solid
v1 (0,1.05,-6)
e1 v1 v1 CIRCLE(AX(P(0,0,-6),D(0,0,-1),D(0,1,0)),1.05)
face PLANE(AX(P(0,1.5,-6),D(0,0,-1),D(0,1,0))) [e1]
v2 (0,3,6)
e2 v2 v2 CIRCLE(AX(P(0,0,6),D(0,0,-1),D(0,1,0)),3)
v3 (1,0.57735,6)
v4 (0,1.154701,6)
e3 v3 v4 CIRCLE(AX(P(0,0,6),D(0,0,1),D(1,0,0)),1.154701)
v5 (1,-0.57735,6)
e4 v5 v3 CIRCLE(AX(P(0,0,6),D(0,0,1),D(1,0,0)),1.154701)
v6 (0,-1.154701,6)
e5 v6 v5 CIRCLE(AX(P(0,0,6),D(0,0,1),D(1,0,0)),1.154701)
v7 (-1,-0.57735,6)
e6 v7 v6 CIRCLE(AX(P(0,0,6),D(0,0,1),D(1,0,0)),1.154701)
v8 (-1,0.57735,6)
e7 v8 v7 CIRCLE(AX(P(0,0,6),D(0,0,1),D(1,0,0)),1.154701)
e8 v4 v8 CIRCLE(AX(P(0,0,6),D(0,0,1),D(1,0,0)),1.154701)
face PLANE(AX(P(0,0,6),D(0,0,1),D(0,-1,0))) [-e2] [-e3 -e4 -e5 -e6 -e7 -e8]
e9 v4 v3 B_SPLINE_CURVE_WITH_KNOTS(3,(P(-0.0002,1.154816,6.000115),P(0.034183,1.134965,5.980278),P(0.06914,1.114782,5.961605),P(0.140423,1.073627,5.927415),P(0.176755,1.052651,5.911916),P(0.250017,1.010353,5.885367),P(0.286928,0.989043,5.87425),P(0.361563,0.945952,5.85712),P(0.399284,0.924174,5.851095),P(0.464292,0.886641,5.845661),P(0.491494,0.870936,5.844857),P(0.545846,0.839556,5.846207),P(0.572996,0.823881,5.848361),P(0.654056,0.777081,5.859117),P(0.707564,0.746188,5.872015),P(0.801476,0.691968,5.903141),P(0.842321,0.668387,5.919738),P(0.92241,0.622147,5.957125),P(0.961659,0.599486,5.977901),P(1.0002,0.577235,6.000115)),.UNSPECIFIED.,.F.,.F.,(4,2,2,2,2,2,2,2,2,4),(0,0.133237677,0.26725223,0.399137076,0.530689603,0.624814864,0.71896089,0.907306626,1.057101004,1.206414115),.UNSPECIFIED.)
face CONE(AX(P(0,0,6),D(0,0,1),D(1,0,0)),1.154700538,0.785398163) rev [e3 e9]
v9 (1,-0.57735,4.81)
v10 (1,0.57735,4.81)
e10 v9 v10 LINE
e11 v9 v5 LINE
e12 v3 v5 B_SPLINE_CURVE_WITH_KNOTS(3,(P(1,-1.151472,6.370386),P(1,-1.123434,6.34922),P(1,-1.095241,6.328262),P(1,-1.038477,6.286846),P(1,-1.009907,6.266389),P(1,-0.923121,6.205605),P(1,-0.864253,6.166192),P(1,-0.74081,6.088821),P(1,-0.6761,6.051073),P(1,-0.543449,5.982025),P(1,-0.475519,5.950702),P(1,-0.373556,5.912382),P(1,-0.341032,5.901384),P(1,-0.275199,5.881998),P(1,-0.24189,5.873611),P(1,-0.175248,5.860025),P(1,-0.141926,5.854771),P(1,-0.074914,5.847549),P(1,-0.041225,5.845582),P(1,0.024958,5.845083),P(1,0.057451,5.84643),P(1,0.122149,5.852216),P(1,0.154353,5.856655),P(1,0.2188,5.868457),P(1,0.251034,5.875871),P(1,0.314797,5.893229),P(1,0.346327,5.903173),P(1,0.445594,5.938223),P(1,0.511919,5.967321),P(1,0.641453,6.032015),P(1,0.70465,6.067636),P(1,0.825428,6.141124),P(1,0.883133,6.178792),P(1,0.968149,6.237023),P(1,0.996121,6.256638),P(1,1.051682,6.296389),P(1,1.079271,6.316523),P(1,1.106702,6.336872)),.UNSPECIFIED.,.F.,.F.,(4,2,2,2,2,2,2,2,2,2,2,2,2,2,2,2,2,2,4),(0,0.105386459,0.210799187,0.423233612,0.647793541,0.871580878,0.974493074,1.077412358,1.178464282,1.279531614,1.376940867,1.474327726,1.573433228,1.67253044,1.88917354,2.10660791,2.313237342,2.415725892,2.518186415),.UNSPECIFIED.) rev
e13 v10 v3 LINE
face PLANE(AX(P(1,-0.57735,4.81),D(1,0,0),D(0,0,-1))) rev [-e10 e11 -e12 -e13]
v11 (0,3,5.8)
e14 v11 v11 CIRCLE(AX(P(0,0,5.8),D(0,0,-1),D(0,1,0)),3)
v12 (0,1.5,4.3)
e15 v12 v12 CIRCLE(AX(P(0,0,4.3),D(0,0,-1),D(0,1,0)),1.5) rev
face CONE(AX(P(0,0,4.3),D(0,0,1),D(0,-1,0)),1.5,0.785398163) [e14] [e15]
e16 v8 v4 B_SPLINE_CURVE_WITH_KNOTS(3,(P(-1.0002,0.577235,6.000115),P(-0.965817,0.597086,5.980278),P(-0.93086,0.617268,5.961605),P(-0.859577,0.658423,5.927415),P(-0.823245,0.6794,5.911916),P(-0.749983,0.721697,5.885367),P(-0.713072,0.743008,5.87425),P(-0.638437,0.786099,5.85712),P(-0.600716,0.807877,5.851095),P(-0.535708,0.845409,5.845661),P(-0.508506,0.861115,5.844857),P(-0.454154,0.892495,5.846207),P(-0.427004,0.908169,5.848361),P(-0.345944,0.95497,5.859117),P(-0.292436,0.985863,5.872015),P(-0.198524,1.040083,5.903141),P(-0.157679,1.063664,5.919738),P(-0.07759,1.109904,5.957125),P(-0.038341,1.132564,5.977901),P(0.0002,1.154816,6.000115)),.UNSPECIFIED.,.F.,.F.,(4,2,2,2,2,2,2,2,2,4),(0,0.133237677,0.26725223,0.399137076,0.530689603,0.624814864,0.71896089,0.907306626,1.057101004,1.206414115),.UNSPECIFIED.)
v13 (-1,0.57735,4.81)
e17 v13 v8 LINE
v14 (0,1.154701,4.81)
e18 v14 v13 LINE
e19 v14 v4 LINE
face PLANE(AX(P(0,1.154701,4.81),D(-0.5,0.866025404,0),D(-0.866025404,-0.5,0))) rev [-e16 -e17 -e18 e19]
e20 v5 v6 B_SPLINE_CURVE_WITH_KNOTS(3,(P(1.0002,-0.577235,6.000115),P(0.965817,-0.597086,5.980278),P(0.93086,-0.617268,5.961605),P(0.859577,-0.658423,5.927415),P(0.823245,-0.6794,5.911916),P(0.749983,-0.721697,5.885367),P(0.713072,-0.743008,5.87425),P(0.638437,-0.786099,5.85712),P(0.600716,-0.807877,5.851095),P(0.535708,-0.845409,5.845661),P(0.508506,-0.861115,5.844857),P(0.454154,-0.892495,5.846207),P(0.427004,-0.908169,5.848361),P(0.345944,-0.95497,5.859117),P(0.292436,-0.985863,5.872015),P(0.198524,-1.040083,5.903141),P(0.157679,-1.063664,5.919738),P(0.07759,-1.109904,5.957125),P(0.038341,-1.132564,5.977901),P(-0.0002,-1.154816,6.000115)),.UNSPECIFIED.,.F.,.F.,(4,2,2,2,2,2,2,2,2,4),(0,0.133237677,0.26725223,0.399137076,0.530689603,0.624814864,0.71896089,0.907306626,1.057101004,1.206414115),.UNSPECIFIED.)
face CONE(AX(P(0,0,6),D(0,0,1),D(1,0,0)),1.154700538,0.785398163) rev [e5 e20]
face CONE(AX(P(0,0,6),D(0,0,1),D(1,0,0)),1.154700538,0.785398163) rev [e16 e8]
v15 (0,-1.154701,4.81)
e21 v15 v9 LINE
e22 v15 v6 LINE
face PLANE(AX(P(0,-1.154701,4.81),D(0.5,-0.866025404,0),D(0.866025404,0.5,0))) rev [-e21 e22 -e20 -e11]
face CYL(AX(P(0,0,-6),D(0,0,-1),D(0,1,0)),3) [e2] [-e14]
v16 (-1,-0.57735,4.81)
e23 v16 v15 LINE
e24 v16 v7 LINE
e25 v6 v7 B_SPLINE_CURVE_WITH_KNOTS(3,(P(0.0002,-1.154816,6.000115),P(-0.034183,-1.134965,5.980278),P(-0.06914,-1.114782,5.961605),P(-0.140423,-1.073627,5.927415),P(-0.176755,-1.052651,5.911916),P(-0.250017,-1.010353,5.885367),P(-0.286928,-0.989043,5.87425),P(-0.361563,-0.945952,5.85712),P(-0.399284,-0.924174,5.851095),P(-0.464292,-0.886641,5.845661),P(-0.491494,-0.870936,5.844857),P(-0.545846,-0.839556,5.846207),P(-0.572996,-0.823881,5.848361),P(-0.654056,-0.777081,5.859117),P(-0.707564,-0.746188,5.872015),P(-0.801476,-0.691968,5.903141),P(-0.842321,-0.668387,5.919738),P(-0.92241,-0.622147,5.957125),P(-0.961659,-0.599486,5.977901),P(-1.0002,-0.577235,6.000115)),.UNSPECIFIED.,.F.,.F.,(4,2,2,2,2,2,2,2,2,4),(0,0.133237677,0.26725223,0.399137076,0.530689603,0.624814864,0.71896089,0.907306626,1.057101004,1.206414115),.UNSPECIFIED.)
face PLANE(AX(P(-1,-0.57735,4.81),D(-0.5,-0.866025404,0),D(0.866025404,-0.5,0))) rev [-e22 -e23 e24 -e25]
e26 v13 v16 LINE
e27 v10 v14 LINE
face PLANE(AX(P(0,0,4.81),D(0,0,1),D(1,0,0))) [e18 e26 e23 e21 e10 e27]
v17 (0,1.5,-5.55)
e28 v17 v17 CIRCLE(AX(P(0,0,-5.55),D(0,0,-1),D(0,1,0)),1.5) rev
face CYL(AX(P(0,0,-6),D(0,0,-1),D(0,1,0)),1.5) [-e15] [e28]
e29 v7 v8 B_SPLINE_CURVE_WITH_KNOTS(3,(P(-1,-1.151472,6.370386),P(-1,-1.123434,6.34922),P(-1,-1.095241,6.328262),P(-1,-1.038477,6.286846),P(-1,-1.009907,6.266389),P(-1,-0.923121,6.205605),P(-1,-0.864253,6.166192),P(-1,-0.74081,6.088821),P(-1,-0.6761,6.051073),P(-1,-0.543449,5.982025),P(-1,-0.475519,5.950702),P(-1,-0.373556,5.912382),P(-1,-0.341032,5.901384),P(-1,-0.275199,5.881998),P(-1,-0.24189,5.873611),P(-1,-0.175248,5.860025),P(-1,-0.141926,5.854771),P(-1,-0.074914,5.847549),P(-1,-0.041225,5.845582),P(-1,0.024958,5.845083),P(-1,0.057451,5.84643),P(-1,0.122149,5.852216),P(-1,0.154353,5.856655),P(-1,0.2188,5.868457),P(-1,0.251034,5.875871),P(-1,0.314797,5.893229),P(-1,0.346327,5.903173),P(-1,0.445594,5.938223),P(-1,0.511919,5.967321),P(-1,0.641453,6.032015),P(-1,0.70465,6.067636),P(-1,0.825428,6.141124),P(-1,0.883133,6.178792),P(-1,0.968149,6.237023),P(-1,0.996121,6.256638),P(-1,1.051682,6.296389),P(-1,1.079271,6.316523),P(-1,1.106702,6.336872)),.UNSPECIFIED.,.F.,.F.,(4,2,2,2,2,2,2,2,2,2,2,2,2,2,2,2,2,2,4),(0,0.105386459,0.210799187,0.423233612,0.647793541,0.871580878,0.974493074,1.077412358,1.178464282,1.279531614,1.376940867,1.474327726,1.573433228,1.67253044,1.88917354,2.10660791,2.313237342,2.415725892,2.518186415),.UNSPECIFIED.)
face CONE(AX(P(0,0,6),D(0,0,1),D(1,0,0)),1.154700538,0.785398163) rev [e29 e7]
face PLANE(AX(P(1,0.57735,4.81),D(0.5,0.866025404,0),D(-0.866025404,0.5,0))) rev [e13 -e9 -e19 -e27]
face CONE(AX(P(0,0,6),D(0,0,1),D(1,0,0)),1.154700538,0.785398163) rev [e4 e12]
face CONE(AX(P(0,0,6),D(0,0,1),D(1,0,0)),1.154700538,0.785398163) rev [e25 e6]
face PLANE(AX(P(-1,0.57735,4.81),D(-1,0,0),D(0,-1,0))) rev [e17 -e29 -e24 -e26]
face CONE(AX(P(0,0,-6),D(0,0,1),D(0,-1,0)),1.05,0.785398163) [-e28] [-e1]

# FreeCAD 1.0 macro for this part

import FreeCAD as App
import Part
import Sketcher

V = App.Vector
Q = App.Units.Quantity


def edges_at(feature, points):
    """Names of the edges that pass closest to the given points."""
    edges = feature.Shape.Edges
    near = lambda p: min(range(len(edges)), key=lambda i: edges[i].distToShape(Part.Vertex(*p))[0])
    return sorted({f"Edge{near(p) + 1}" for p in points})

doc = App.newDocument("Part")
body = doc.addObject("PartDesign::Body", "Body")

sketch1 = body.newObject("Sketcher::SketchObject", "Sketch")
sketch1.AttachmentSupport = (doc.getObject("YZ_Plane"), [""])
sketch1.MapMode = "FlatFace"
sketch1.addGeometry([
    Part.LineSegment(V(1.5, 6, 0), V(0, 6, 0)),
    Part.LineSegment(V(0, 6, 0), V(0, -6, 0)),
    Part.LineSegment(V(0, -6, 0), V(1.5, -6, 0)),
    Part.LineSegment(V(1.5, -6, 0), V(1.5, 6, 0)),
], False)
sketch1.addConstraint([
    Sketcher.Constraint("Coincident", 0, 2, 1, 1),
    Sketcher.Constraint("Coincident", 1, 2, 2, 1),
    Sketcher.Constraint("Coincident", 2, 2, 3, 1),
    Sketcher.Constraint("Coincident", 3, 2, 0, 1),
    Sketcher.Constraint("Horizontal", 0),
    Sketcher.Constraint("Vertical", 1),
    Sketcher.Constraint("Horizontal", 2),
    Sketcher.Constraint("Vertical", 3),
    Sketcher.Constraint("Symmetric", 0, 2, 1, 2, -1, 1),
    Sketcher.Constraint("DistanceY", 1, 2, 1, 1, Q("12 mm")),
    Sketcher.Constraint("DistanceX", 0, 2, 0, 1, Q("1.5 mm")),
])
revolution = body.newObject("PartDesign::Revolution", "Revolution")
revolution.Profile = sketch1
revolution.ReferenceAxis = (sketch1, ["V_Axis"])
revolution.Angle = 360
doc.recompute()

chamfer = body.newObject("PartDesign::Chamfer", "Chamfer")
chamfer.Base = (revolution, edges_at(revolution, [(0, -1.5, -6)]))
chamfer.Size = 0.45

sketch2 = body.newObject("Sketcher::SketchObject", "Sketch001")
sketch2.AttachmentSupport = (doc.getObject("YZ_Plane"), [""])
sketch2.MapMode = "FlatFace"
sketch2.addGeometry([
    Part.LineSegment(V(3, 5.8, 0), V(3, 6, 0)),
    Part.LineSegment(V(3, 6, 0), V(0, 6, 0)),
    Part.LineSegment(V(0, 6, 0), V(0, 4.3, 0)),
    Part.LineSegment(V(0, 4.3, 0), V(1.5, 4.3, 0)),
    Part.LineSegment(V(1.5, 4.3, 0), V(3, 5.8, 0)),
], False)
sketch2.addConstraint([
    Sketcher.Constraint("Coincident", 0, 2, 1, 1),
    Sketcher.Constraint("Coincident", 1, 2, 2, 1),
    Sketcher.Constraint("Coincident", 2, 2, 3, 1),
    Sketcher.Constraint("Coincident", 3, 2, 4, 1),
    Sketcher.Constraint("Coincident", 4, 2, 0, 1),
    Sketcher.Constraint("Vertical", 0),
    Sketcher.Constraint("Horizontal", 1),
    Sketcher.Constraint("Vertical", 2),
    Sketcher.Constraint("Horizontal", 3),
    Sketcher.Constraint("PointOnObject", 1, 2, -2),
    Sketcher.Constraint("DistanceX", 1, 2, 1, 1, Q("3 mm")),
    Sketcher.Constraint("Angle", 4, Q("45 deg")),
    Sketcher.Constraint("DistanceX", 3, 1, 3, 2, Q("1.5 mm")),
    Sketcher.Constraint("DistanceY", 0, 1, 0, 2, Q("0.2 mm")),
    Sketcher.Constraint("DistanceY", -1, 1, 0, 2, Q("6 mm")),
])
revolution2 = body.newObject("PartDesign::Revolution", "Revolution001")
revolution2.Profile = sketch2
revolution2.ReferenceAxis = (sketch2, ["V_Axis"])
revolution2.Angle = 360

sketch3 = body.newObject("Sketcher::SketchObject", "Sketch002")
sketch3.AttachmentSupport = (doc.getObject("XY_Plane"), [""])
sketch3.MapMode = "FlatFace"
sketch3.AttachmentOffset = App.Placement(V(0, 0, 6), App.Rotation())
sketch3.addGeometry([
    Part.LineSegment(V(0, 1.2, 0), V(-1, 0.6, 0)),
    Part.LineSegment(V(-1, 0.6, 0), V(-1, -0.6, 0)),
    Part.LineSegment(V(-1, -0.6, 0), V(0, -1.2, 0)),
    Part.LineSegment(V(0, -1.2, 0), V(1, -0.6, 0)),
    Part.LineSegment(V(1, -0.6, 0), V(1, 0.6, 0)),
    Part.LineSegment(V(1, 0.6, 0), V(0, 1.2, 0)),
], False)
sketch3.addConstraint([
    Sketcher.Constraint("Coincident", 0, 2, 1, 1),
    Sketcher.Constraint("Coincident", 1, 2, 2, 1),
    Sketcher.Constraint("Coincident", 2, 2, 3, 1),
    Sketcher.Constraint("Coincident", 3, 2, 4, 1),
    Sketcher.Constraint("Coincident", 4, 2, 5, 1),
    Sketcher.Constraint("Coincident", 5, 2, 0, 1),
    Sketcher.Constraint("Vertical", 1),
    Sketcher.Constraint("Vertical", 4),
    Sketcher.Constraint("Symmetric", 0, 2, 3, 2, -1, 1),
    Sketcher.Constraint("Symmetric", 2, 2, 5, 2, -1, 1),
    Sketcher.Constraint("PointOnObject", 2, 2, -2),
    Sketcher.Constraint("Parallel", 2, 5),
    Sketcher.Constraint("Horizontal", 1, 2, 3, 2),
    Sketcher.Constraint("Angle", 0, Q("-150 deg")),
    Sketcher.Constraint("DistanceX", 0, 2, -1, 1, Q("1 mm")),
    Sketcher.Constraint("DistanceY", 1, 2, 1, 1, Q("1.154701 mm")),
])
pocket1 = body.newObject("PartDesign::Pocket", "Pocket")
pocket1.Profile = sketch3
pocket1.Length = 1.19

sketch4 = body.newObject("Sketcher::SketchObject", "Sketch003")
sketch4.AttachmentSupport = (doc.getObject("YZ_Plane"), [""])
sketch4.MapMode = "FlatFace"
sketch4.addGeometry([
    Part.LineSegment(V(0, 6, 0), V(-1.2, 6, 0)),
    Part.LineSegment(V(-1.2, 6, 0), V(0, 4.8, 0)),
    Part.LineSegment(V(0, 4.8, 0), V(0, 6, 0)),
], False)
sketch4.addConstraint([
    Sketcher.Constraint("Coincident", 0, 2, 1, 1),
    Sketcher.Constraint("Coincident", 1, 2, 2, 1),
    Sketcher.Constraint("Coincident", 2, 2, 0, 1),
    Sketcher.Constraint("Horizontal", 0),
    Sketcher.Constraint("Vertical", 2),
    Sketcher.Constraint("PointOnObject", 1, 2, -2),
    Sketcher.Constraint("Equal", 0, 2),
    Sketcher.Constraint("DistanceY", -1, 1, 0, 2, Q("6 mm")),
    Sketcher.Constraint("DistanceX", 0, 2, 0, 1, Q("1.154701 mm")),
])
groove = body.newObject("PartDesign::Groove", "Groove")
groove.Profile = sketch4
groove.ReferenceAxis = (sketch4, ["V_Axis"])
groove.Angle = 360

doc.recompute()
